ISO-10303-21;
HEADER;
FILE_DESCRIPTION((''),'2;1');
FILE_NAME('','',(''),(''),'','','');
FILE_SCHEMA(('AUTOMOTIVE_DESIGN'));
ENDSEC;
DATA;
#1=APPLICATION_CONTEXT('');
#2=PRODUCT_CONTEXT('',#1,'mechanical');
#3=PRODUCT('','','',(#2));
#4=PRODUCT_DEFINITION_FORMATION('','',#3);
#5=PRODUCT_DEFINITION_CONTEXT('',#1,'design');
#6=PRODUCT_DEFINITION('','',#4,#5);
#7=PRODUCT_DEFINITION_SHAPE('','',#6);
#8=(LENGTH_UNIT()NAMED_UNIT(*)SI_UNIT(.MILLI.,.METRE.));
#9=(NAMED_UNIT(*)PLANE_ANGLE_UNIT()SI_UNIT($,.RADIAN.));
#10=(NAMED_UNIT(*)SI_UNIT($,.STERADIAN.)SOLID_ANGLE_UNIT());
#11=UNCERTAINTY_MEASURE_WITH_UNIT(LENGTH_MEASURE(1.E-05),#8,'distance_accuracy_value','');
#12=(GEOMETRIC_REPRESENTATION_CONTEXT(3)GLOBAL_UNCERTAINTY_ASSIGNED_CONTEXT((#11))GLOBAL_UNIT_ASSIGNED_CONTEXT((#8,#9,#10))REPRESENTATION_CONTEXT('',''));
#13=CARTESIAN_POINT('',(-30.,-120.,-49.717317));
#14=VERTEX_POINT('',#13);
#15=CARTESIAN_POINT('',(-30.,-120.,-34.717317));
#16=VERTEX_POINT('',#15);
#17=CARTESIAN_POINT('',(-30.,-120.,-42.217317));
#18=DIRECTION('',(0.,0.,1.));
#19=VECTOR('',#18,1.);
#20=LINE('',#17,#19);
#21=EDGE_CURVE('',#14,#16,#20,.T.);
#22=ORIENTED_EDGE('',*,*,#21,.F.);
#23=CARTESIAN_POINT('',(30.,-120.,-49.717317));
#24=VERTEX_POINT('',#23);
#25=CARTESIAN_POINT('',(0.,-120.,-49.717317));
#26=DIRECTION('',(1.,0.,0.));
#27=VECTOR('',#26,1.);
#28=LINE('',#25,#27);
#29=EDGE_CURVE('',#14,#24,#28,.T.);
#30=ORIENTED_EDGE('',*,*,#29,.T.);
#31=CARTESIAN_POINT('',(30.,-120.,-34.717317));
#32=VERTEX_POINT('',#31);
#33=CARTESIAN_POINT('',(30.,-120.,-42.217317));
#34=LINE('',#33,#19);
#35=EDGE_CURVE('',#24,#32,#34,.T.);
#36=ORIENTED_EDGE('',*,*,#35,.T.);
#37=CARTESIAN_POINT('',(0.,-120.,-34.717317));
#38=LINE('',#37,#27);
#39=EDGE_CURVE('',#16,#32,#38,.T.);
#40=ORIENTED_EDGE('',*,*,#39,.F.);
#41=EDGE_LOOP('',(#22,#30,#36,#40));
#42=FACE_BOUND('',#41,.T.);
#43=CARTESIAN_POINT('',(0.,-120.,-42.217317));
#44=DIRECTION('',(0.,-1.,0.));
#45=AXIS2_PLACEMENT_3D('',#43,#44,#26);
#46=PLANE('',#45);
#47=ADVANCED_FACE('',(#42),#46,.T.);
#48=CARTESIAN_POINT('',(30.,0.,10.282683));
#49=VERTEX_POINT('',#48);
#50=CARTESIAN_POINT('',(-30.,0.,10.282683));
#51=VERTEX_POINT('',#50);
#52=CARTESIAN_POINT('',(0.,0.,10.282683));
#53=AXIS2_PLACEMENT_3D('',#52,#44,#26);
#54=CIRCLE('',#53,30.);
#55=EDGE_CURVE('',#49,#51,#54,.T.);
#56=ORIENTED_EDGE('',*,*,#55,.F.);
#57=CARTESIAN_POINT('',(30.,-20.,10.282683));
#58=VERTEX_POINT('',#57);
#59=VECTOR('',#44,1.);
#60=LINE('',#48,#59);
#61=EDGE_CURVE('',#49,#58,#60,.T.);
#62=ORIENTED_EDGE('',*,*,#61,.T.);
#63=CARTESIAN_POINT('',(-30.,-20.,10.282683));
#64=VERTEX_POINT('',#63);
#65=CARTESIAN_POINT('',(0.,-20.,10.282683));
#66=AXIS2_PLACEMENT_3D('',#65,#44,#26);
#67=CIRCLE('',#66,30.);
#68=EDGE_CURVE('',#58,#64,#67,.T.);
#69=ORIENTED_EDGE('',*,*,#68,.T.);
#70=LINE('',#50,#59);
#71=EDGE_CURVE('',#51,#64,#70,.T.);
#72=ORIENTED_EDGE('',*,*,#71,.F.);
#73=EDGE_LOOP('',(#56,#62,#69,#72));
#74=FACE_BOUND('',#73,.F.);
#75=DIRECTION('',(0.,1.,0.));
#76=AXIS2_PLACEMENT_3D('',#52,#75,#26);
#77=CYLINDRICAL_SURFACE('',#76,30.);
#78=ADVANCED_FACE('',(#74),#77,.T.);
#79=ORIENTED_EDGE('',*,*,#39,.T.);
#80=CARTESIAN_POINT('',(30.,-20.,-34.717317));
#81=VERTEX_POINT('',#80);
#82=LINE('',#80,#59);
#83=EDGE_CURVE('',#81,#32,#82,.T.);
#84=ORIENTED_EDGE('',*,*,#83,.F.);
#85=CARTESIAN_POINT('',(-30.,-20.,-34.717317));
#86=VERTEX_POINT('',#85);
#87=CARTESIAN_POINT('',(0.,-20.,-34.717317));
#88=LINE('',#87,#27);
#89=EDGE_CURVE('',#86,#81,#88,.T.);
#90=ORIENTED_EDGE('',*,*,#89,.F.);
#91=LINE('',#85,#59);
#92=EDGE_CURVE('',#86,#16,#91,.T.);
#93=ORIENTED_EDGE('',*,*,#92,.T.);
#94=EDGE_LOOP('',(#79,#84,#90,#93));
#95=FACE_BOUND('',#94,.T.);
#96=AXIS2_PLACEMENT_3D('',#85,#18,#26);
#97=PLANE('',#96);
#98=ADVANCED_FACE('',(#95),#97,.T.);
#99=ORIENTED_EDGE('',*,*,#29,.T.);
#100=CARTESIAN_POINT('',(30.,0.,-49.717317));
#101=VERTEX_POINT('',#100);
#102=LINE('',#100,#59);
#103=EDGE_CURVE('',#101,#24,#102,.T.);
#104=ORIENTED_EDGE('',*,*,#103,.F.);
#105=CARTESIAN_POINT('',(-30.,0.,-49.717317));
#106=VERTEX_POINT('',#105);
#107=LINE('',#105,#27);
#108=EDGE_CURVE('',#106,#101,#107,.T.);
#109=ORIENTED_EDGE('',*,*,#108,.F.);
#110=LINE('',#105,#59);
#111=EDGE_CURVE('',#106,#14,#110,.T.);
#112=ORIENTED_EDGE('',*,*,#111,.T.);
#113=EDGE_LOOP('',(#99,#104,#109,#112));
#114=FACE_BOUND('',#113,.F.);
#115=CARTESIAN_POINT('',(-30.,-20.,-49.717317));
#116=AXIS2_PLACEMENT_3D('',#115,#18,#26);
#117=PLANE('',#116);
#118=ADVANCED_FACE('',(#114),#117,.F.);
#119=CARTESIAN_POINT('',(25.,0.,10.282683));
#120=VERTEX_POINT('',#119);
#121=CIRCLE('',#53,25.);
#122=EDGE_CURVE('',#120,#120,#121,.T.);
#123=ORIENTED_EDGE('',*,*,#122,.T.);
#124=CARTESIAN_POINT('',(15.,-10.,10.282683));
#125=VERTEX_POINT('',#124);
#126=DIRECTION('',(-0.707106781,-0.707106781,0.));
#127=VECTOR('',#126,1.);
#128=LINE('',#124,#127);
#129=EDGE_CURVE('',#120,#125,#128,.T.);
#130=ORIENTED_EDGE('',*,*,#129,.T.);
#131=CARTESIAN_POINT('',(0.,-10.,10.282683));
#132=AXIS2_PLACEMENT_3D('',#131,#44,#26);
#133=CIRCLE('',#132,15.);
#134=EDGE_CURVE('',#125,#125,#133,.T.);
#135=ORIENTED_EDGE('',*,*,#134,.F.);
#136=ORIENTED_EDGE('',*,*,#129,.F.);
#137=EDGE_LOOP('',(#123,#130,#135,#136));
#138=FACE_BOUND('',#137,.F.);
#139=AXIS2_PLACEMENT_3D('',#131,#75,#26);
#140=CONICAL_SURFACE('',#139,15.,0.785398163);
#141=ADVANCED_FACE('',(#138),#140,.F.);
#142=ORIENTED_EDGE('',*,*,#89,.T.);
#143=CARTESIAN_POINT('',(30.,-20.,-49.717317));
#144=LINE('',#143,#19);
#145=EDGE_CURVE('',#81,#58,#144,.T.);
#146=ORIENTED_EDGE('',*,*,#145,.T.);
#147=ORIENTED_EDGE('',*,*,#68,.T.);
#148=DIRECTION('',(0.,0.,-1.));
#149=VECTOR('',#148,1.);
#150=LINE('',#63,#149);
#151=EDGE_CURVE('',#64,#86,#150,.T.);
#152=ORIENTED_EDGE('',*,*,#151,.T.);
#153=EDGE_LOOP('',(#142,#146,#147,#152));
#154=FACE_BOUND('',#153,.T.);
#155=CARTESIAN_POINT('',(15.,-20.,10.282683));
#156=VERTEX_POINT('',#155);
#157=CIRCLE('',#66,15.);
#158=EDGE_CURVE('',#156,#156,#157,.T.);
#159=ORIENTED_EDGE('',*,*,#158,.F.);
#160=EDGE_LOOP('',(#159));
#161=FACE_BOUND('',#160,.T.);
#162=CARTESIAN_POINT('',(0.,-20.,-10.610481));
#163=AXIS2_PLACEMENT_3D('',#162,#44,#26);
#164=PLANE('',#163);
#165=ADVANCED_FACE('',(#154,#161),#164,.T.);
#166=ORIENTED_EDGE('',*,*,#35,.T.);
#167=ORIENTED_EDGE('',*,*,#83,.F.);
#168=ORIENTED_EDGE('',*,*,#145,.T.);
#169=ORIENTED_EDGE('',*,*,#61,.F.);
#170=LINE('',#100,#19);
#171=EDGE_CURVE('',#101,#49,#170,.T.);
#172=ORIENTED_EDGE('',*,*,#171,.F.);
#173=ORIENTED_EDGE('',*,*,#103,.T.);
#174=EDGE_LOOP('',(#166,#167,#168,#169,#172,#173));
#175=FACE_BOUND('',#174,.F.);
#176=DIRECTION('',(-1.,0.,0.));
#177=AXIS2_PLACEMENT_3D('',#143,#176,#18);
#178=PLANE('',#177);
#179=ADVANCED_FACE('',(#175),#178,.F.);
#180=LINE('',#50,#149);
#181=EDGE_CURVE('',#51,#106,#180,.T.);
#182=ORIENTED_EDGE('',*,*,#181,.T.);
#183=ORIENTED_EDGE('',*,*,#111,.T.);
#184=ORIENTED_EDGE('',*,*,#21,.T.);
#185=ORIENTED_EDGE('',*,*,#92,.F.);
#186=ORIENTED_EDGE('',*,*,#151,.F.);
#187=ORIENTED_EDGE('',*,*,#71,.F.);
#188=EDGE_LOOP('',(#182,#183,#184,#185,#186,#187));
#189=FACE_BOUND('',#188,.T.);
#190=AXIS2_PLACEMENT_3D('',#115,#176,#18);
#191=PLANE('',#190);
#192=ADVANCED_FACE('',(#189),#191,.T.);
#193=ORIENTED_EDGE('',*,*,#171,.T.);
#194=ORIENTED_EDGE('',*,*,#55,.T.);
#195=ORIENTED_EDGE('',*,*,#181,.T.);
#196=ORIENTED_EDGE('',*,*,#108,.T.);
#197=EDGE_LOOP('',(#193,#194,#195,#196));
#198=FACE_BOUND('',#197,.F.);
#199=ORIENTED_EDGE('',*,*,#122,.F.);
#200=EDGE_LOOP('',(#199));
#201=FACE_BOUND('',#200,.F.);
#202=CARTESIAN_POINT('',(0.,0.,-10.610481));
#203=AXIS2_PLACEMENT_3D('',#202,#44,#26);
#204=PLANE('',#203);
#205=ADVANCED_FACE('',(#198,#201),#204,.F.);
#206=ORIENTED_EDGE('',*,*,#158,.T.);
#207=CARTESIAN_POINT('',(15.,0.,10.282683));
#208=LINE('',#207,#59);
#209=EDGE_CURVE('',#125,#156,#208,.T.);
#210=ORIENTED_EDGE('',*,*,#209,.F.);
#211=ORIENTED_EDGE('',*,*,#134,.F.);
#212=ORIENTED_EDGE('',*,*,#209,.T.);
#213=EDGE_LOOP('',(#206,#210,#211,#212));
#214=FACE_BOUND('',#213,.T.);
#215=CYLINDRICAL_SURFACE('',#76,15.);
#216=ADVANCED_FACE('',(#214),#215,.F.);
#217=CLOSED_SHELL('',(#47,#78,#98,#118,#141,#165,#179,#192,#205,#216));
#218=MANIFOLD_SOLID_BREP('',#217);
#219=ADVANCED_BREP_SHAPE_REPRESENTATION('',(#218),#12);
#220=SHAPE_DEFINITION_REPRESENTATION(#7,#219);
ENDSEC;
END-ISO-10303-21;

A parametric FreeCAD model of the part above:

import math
import FreeCAD as App
import Part
import Sketcher
Q = App.Units.Quantity


def edges_at(feature, points):
    """Names of the edges that pass closest to the given points."""
    edges = feature.Shape.Edges
    near = lambda p: min(range(len(edges)), key=lambda i: edges[i].distToShape(Part.Vertex(*p))[0])
    return sorted({f"Edge{near(p) + 1}" for p in points})

doc = App.newDocument("Part")
params = doc.addObject("Spreadsheet::Sheet", "Params")
for row, (alias, value) in enumerate([
    ("sketch1_diameter", "30 mm"),
    ("sketch1_radius", "30 mm"),
    ("pad1_length", "20 mm"),
    ("sketch2_width", "60 mm"),
    ("sketch2_height", "15 mm"),
    ("pad2_length", "100 mm"),
    ("chamfer_size", "10 mm"),
], start=1):
    params.set(f"A{row}", alias)
    params.set(f"B{row}", "=" + value)
    params.setAlias(f"B{row}", alias)

body = doc.addObject("PartDesign::Body", "Body")

sketch1 = doc.addObject("Sketcher::SketchObject", "Sketch")
body.addObject(sketch1)
sketch1.AttachmentSupport = (doc.XZ_Plane, [""])
sketch1.MapMode = "FlatFace"
sketch1.addGeometry(Part.LineSegment(App.Vector(-30, -50, 0), App.Vector(30, -50, 0)), False)
sketch1.addGeometry(Part.LineSegment(App.Vector(30, -50, 0), App.Vector(30, 10, 0)), False)
sketch1.addGeometry(Part.ArcOfCircle(Part.Circle(App.Vector(0, 10, 0), App.Vector(0, 0, 1), 30), math.radians(0), math.radians(180)), False)
sketch1.addGeometry(Part.LineSegment(App.Vector(-30, 10, 0), App.Vector(-30, -50, 0)), False)
sketch1.addGeometry(Part.Circle(App.Vector(0, 10, 0), App.Vector(0, 0, 1), 15), False)
sketch1.addConstraint(Sketcher.Constraint("Coincident", 0, 2, 1, 1))
sketch1.addConstraint(Sketcher.Constraint("Tangent", 1, 2, 2, 1))
sketch1.addConstraint(Sketcher.Constraint("Tangent", 2, 2, 3, 1))
sketch1.addConstraint(Sketcher.Constraint("Coincident", 3, 2, 0, 1))
sketch1.addConstraint(Sketcher.Constraint("Horizontal", 0))
sketch1.addConstraint(Sketcher.Constraint("Vertical", 1))
sketch1.addConstraint(Sketcher.Constraint("Vertical", 3))
sketch1.addConstraint(Sketcher.Constraint("Coincident", 4, 3, 2, 3))
sketch1.addConstraint(Sketcher.Constraint("PointOnObject", 2, 3, -2))
sketch1.addConstraint(Sketcher.Constraint("Equal", 0, 1))
sketch1.addConstraint(Sketcher.Constraint("Diameter", 4, Q("30 mm")))
sketch1.addConstraint(Sketcher.Constraint("Radius", 2, Q("30 mm")))
sketch1.addConstraint(Sketcher.Constraint("DistanceY", -1, 1, 2, 3, Q("10.282683 mm")))
sketch1.setExpression("Constraints[10]", "Params.sketch1_diameter")
sketch1.setExpression("Constraints[11]", "Params.sketch1_radius")
pad1 = doc.addObject("PartDesign::Pad", "Pad")
body.addObject(pad1)
pad1.Profile = sketch1
pad1.setExpression("Length", "Params.pad1_length")

sketch2 = doc.addObject("Sketcher::SketchObject", "Sketch001")
body.addObject(sketch2)
sketch2.AttachmentSupport = (doc.XZ_Plane, [""])
sketch2.MapMode = "FlatFace"
sketch2.AttachmentOffset = App.Placement(App.Vector(0, 0, 20), App.Rotation())
sketch2.addGeometry(Part.LineSegment(App.Vector(-30, -35, 0), App.Vector(-30, -50, 0)), False)
sketch2.addGeometry(Part.LineSegment(App.Vector(-30, -50, 0), App.Vector(30, -50, 0)), False)
sketch2.addGeometry(Part.LineSegment(App.Vector(30, -50, 0), App.Vector(30, -35, 0)), False)
sketch2.addGeometry(Part.LineSegment(App.Vector(30, -35, 0), App.Vector(-30, -35, 0)), False)
sketch2.addConstraint(Sketcher.Constraint("Coincident", 0, 2, 1, 1))
sketch2.addConstraint(Sketcher.Constraint("Coincident", 1, 2, 2, 1))
sketch2.addConstraint(Sketcher.Constraint("Coincident", 2, 2, 3, 1))
sketch2.addConstraint(Sketcher.Constraint("Coincident", 3, 2, 0, 1))
sketch2.addConstraint(Sketcher.Constraint("Vertical", 0))
sketch2.addConstraint(Sketcher.Constraint("Horizontal", 1))
sketch2.addConstraint(Sketcher.Constraint("Vertical", 2))
sketch2.addConstraint(Sketcher.Constraint("Horizontal", 3))
sketch2.addConstraint(Sketcher.Constraint("DistanceX", 1, 1, 1, 2, Q("60 mm")))
sketch2.addConstraint(Sketcher.Constraint("DistanceY", 0, 2, 0, 1, Q("15 mm")))
sketch2.addConstraint(Sketcher.Constraint("DistanceX", 0, 2, -1, 1, Q("30 mm")))
sketch2.addConstraint(Sketcher.Constraint("DistanceY", 0, 2, -1, 1, Q("49.717317 mm")))
sketch2.setExpression("Constraints[8]", "Params.sketch2_width")
sketch2.setExpression("Constraints[9]", "Params.sketch2_height")
pad2 = doc.addObject("PartDesign::Pad", "Pad001")
body.addObject(pad2)
pad2.Profile = sketch2
pad2.setExpression("Length", "Params.pad2_length")
doc.recompute()

chamfer = doc.addObject("PartDesign::Chamfer", "Chamfer")
body.addObject(chamfer)
chamfer.Base = (pad2, edges_at(pad2, [(-15, 0, 10.283)]))
chamfer.setExpression("Size", "Params.chamfer_size")

doc.recompute()
